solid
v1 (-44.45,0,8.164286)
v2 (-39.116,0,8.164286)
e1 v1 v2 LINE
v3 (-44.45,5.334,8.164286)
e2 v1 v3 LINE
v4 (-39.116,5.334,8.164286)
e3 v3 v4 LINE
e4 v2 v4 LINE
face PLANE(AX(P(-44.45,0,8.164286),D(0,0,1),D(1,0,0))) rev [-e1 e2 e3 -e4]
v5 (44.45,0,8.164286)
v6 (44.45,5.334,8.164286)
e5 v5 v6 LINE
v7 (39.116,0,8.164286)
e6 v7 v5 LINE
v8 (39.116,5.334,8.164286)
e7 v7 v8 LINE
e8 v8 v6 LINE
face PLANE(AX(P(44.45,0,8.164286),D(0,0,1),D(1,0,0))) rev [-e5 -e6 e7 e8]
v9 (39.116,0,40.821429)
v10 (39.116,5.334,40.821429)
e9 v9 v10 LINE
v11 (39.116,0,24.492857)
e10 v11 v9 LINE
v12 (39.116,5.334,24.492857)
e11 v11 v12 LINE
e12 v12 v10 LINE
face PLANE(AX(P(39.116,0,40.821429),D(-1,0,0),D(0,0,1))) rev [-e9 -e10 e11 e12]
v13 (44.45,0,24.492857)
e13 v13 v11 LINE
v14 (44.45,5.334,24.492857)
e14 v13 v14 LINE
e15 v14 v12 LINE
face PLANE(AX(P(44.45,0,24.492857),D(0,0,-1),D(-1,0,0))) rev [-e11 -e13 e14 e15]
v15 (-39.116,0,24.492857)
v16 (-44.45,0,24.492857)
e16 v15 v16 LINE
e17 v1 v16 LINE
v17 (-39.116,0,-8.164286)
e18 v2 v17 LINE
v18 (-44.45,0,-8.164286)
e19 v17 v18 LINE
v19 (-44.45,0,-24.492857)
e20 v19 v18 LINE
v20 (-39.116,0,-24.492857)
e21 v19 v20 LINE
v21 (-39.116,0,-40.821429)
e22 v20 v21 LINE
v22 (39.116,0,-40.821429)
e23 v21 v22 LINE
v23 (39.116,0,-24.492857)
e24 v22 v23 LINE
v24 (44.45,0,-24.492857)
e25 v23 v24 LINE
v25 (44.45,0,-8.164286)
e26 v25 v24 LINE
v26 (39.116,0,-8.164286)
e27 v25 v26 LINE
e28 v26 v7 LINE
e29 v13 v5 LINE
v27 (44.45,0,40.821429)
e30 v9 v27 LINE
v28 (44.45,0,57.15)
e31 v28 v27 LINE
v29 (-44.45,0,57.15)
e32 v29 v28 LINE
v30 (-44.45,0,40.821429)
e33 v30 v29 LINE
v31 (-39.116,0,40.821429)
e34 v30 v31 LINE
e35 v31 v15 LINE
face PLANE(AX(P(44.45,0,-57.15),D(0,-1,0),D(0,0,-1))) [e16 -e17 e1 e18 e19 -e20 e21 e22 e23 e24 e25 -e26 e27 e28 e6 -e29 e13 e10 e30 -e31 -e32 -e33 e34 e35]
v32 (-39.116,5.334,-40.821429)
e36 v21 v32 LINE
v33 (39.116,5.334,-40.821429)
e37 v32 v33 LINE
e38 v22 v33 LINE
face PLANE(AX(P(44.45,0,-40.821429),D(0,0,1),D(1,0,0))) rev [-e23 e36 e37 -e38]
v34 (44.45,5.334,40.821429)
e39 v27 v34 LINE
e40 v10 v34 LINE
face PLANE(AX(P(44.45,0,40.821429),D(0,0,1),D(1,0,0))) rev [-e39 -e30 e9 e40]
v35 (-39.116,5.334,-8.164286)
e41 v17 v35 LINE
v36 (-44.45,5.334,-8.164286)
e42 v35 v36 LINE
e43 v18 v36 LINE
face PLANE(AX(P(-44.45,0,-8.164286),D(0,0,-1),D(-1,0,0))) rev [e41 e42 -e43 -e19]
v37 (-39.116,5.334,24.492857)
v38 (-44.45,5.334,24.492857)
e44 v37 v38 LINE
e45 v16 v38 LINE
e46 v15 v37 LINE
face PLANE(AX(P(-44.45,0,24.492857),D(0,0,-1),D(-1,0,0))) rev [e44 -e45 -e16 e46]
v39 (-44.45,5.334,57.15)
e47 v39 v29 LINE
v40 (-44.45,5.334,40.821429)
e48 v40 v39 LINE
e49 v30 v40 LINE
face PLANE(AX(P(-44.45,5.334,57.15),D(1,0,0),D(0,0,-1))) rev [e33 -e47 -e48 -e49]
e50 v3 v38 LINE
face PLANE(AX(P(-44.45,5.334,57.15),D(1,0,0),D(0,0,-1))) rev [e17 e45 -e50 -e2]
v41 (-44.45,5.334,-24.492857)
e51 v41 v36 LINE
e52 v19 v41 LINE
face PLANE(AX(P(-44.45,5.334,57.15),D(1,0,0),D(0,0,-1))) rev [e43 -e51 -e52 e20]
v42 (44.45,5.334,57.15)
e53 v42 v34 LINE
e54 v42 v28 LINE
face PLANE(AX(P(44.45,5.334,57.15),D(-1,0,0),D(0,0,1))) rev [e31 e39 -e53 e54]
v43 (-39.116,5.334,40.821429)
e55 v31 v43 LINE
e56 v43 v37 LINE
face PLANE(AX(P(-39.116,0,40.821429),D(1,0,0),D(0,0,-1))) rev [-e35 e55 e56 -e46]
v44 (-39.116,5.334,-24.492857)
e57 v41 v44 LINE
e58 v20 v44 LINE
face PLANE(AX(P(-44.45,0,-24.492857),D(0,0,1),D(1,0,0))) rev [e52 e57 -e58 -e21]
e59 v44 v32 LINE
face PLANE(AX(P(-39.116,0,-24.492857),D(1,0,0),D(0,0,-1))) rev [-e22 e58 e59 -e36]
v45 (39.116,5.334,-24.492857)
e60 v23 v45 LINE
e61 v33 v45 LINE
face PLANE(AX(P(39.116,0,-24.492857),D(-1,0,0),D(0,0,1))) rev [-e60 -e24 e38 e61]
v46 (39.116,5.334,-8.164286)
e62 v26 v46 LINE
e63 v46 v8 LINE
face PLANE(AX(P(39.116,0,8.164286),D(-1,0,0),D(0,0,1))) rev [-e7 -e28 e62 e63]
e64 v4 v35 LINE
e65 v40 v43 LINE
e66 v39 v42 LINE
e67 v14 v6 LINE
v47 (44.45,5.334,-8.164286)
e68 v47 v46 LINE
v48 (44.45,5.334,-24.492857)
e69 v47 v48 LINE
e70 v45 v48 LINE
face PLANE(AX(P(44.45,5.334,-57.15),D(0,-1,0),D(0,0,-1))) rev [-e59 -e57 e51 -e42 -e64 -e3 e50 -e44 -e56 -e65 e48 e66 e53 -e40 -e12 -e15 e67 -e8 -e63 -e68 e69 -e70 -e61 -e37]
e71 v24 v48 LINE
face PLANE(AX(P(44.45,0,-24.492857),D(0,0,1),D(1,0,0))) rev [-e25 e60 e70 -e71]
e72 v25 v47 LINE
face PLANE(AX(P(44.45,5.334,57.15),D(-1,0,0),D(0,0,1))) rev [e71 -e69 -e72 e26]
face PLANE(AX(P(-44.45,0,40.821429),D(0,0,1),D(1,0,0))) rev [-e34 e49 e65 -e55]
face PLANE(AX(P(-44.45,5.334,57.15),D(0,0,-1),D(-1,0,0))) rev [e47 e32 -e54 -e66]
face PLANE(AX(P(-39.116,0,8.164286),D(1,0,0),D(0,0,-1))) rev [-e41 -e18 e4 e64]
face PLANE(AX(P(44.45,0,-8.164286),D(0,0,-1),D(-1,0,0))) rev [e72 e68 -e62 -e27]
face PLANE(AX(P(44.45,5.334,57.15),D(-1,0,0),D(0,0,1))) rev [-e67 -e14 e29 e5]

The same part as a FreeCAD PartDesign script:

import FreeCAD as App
import Part
import Sketcher

V = App.Vector
Q = App.Units.Quantity

doc = App.newDocument("Part")
body = doc.addObject("PartDesign::Body", "Body")

sketch1 = body.newObject("Sketcher::SketchObject", "Sketch")
sketch1.AttachmentSupport = (doc.getObject("XZ_Plane"), [""])
sketch1.MapMode = "FlatFace"
sketch1.addGeometry([
    Part.LineSegment(V(-44.45, -57.15, 0), V(-44.45, 57.15, 0)),
    Part.LineSegment(V(-44.45, 57.15, 0), V(44.45, 57.15, 0)),
    Part.LineSegment(V(44.45, 57.15, 0), V(44.45, -57.15, 0)),
    Part.LineSegment(V(44.45, -57.15, 0), V(-44.45, -57.15, 0)),
], False)
sketch1.addConstraint([
    Sketcher.Constraint("Coincident", 0, 2, 1, 1),
    Sketcher.Constraint("Coincident", 1, 2, 2, 1),
    Sketcher.Constraint("Coincident", 2, 2, 3, 1),
    Sketcher.Constraint("Coincident", 3, 2, 0, 1),
    Sketcher.Constraint("Vertical", 0),
    Sketcher.Constraint("Horizontal", 1),
    Sketcher.Constraint("Vertical", 2),
    Sketcher.Constraint("Horizontal", 3),
    Sketcher.Constraint("Symmetric", 0, 2, 2, 2, -1, 1),
    Sketcher.Constraint("DistanceX", 1, 1, 1, 2, Q("3.5 in")),
    Sketcher.Constraint("DistanceY", 0, 1, 0, 2, Q("4.5 in")),
])
pad1 = body.newObject("PartDesign::Pad", "Pad")
pad1.Profile = sketch1
pad1.Length = Q("0.21 in")
pad1.Reversed = True

sketch2 = body.newObject("Sketcher::SketchObject", "Sketch001")
sketch2.AttachmentSupport = (doc.getObject("XZ_Plane"), [""])
sketch2.MapMode = "FlatFace"
sketch2.AttachmentOffset = App.Placement(V(0, 0, -0.21 * 25.4), App.Rotation())
sketch2.addGeometry([
    Part.LineSegment(V(39.116, 24.492857, 0), V(39.116, 40.821429, 0)),
    Part.LineSegment(V(39.116, 40.821429, 0), V(44.45, 40.821429, 0)),
    Part.LineSegment(V(44.45, 40.821429, 0), V(44.45, 24.492857, 0)),
    Part.LineSegment(V(44.45, 24.492857, 0), V(39.116, 24.492857, 0)),
    Part.LineSegment(V(39.116, -8.164286, 0), V(39.116, 8.164286, 0)),
    Part.LineSegment(V(39.116, 8.164286, 0), V(44.45, 8.164286, 0)),
    Part.LineSegment(V(44.45, 8.164286, 0), V(44.45, -8.164286, 0)),
    Part.LineSegment(V(44.45, -8.164286, 0), V(39.116, -8.164286, 0)),
    Part.LineSegment(V(39.116, -40.821429, 0), V(39.116, -24.492857, 0)),
    Part.LineSegment(V(39.116, -24.492857, 0), V(44.45, -24.492857, 0)),
    Part.LineSegment(V(44.45, -24.492857, 0), V(44.45, -40.821429, 0)),
    Part.LineSegment(V(44.45, -40.821429, 0), V(39.116, -40.821429, 0)),
    Part.LineSegment(V(-44.45, -40.821429, 0), V(-44.45, -24.492857, 0)),
    Part.LineSegment(V(-44.45, -24.492857, 0), V(-39.116, -24.492857, 0)),
    Part.LineSegment(V(-39.116, -24.492857, 0), V(-39.116, -40.821429, 0)),
    Part.LineSegment(V(-39.116, -40.821429, 0), V(-44.45, -40.821429, 0)),
    Part.LineSegment(V(-44.45, -8.164286, 0), V(-44.45, 8.164286, 0)),
    Part.LineSegment(V(-44.45, 8.164286, 0), V(-39.116, 8.164286, 0)),
    Part.LineSegment(V(-39.116, 8.164286, 0), V(-39.116, -8.164286, 0)),
    Part.LineSegment(V(-39.116, -8.164286, 0), V(-44.45, -8.164286, 0)),
    Part.LineSegment(V(-44.45, 24.492857, 0), V(-44.45, 40.821429, 0)),
    Part.LineSegment(V(-44.45, 40.821429, 0), V(-39.116, 40.821429, 0)),
    Part.LineSegment(V(-39.116, 40.821429, 0), V(-39.116, 24.492857, 0)),
    Part.LineSegment(V(-39.116, 24.492857, 0), V(-44.45, 24.492857, 0)),
], False)
sketch2.addConstraint([
    Sketcher.Constraint("Coincident", 0, 2, 1, 1),
    Sketcher.Constraint("Coincident", 1, 2, 2, 1),
    Sketcher.Constraint("Coincident", 2, 2, 3, 1),
    Sketcher.Constraint("Coincident", 3, 2, 0, 1),
    Sketcher.Constraint("Coincident", 4, 2, 5, 1),
    Sketcher.Constraint("Coincident", 5, 2, 6, 1),
    Sketcher.Constraint("Coincident", 6, 2, 7, 1),
    Sketcher.Constraint("Coincident", 7, 2, 4, 1),
    Sketcher.Constraint("Coincident", 8, 2, 9, 1),
    Sketcher.Constraint("Coincident", 9, 2, 10, 1),
    Sketcher.Constraint("Coincident", 10, 2, 11, 1),
    Sketcher.Constraint("Coincident", 11, 2, 8, 1),
    Sketcher.Constraint("Coincident", 12, 2, 13, 1),
    Sketcher.Constraint("Coincident", 13, 2, 14, 1),
    Sketcher.Constraint("Coincident", 14, 2, 15, 1),
    Sketcher.Constraint("Coincident", 15, 2, 12, 1),
    Sketcher.Constraint("Coincident", 16, 2, 17, 1),
    Sketcher.Constraint("Coincident", 17, 2, 18, 1),
    Sketcher.Constraint("Coincident", 18, 2, 19, 1),
    Sketcher.Constraint("Coincident", 19, 2, 16, 1),
    Sketcher.Constraint("Coincident", 20, 2, 21, 1),
    Sketcher.Constraint("Coincident", 21, 2, 22, 1),
    Sketcher.Constraint("Coincident", 22, 2, 23, 1),
    Sketcher.Constraint("Coincident", 23, 2, 20, 1),
    Sketcher.Constraint("Vertical", 0),
    Sketcher.Constraint("Horizontal", 1),
    Sketcher.Constraint("Vertical", 2),
    Sketcher.Constraint("Horizontal", 3),
    Sketcher.Constraint("Vertical", 4),
    Sketcher.Constraint("Horizontal", 5),
    Sketcher.Constraint("Vertical", 6),
    Sketcher.Constraint("Horizontal", 7),
    Sketcher.Constraint("Vertical", 8),
    Sketcher.Constraint("Horizontal", 9),
    Sketcher.Constraint("Vertical", 10),
    Sketcher.Constraint("Horizontal", 11),
    Sketcher.Constraint("Vertical", 12),
    Sketcher.Constraint("Horizontal", 13),
    Sketcher.Constraint("Vertical", 14),
    Sketcher.Constraint("Horizontal", 15),
    Sketcher.Constraint("Vertical", 16),
    Sketcher.Constraint("Horizontal", 17),
    Sketcher.Constraint("Vertical", 18),
    Sketcher.Constraint("Horizontal", 19),
    Sketcher.Constraint("Vertical", 20),
    Sketcher.Constraint("Horizontal", 21),
    Sketcher.Constraint("Vertical", 22),
    Sketcher.Constraint("Horizontal", 23),
    Sketcher.Constraint("Symmetric", 2, 2, 12, 2, -1, 1),
    Sketcher.Constraint("Symmetric", 0, 2, 14, 2, -1, 1),
    Sketcher.Constraint("Symmetric", 6, 2, 16, 2, -1, 1),
    Sketcher.Constraint("Symmetric", 4, 2, 18, 2, -1, 1),
    Sketcher.Constraint("Symmetric", 10, 2, 20, 2, -1, 1),
    Sketcher.Constraint("Symmetric", 8, 2, 22, 2, -1, 1),
    Sketcher.Constraint("Symmetric", 9, 2, 12, 2, -2),
    Sketcher.Constraint("Symmetric", 11, 2, 14, 2, -2),
    Sketcher.Constraint("Horizontal", 5, 2, 16, 2),
    Sketcher.Constraint("Vertical", 3, 2, 4, 2),
    Sketcher.Constraint("Vertical", 2, 2, 5, 2),
    Sketcher.Constraint("Equal", 2, 4),
    Sketcher.Constraint("DistanceX", 1, 1, 1, 2, Q("0.21 in")),
    Sketcher.Constraint("DistanceX", 12, 2, 9, 2, Q("3.5 in")),
    Sketcher.Constraint("DistanceY", 0, 1, 0, 2, Q("16.328571 mm")),
    Sketcher.Constraint("DistanceY", -1, 1, 0, 2, Q("40.821429 mm")),
])
pocket1 = body.newObject("PartDesign::Pocket", "Pocket")
pocket1.Profile = sketch2
pocket1.Type = "ThroughAll"
pocket1.Reversed = True

sketch3 = body.newObject("Sketcher::SketchObject", "Sketch002")
sketch3.AttachmentSupport = (doc.getObject("XZ_Plane"), [""])
sketch3.MapMode = "FlatFace"
sketch3.AttachmentOffset = App.Placement(V(0, 0, -0.21 * 25.4), App.Rotation())
sketch3.addGeometry([
    Part.LineSegment(V(39.116, 24.492857, 0), V(39.116, 40.821429, 0)),
    Part.LineSegment(V(39.116, 40.821429, 0), V(44.45, 40.821429, 0)),
    Part.LineSegment(V(44.45, 40.821429, 0), V(44.45, 24.492857, 0)),
    Part.LineSegment(V(44.45, 24.492857, 0), V(39.116, 24.492857, 0)),
    Part.LineSegment(V(39.116, -8.164286, 0), V(39.116, 8.164286, 0)),
    Part.LineSegment(V(39.116, 8.164286, 0), V(44.45, 8.164286, 0)),
    Part.LineSegment(V(44.45, 8.164286, 0), V(44.45, -8.164286, 0)),
    Part.LineSegment(V(44.45, -8.164286, 0), V(39.116, -8.164286, 0)),
    Part.LineSegment(V(39.116, -40.821429, 0), V(39.116, -24.492857, 0)),
    Part.LineSegment(V(39.116, -24.492857, 0), V(44.45, -24.492857, 0)),
    Part.LineSegment(V(44.45, -24.492857, 0), V(44.45, -40.821429, 0)),
    Part.LineSegment(V(44.45, -40.821429, 0), V(39.116, -40.821429, 0)),
    Part.LineSegment(V(-44.45, -40.821429, 0), V(-44.45, -24.492857, 0)),
    Part.LineSegment(V(-44.45, -24.492857, 0), V(-39.116, -24.492857, 0)),
    Part.LineSegment(V(-39.116, -24.492857, 0), V(-39.116, -40.821429, 0)),
    Part.LineSegment(V(-39.116, -40.821429, 0), V(-44.45, -40.821429, 0)),
    Part.LineSegment(V(-44.45, -8.164286, 0), V(-44.45, 8.164286, 0)),
    Part.LineSegment(V(-44.45, 8.164286, 0), V(-39.116, 8.164286, 0)),
    Part.LineSegment(V(-39.116, 8.164286, 0), V(-39.116, -8.164286, 0)),
    Part.LineSegment(V(-39.116, -8.164286, 0), V(-44.45, -8.164286, 0)),
    Part.LineSegment(V(-44.45, 24.492857, 0), V(-44.45, 40.821429, 0)),
    Part.LineSegment(V(-44.45, 40.821429, 0), V(-39.116, 40.821429, 0)),
    Part.LineSegment(V(-39.116, 40.821429, 0), V(-39.116, 24.492857, 0)),
    Part.LineSegment(V(-39.116, 24.492857, 0), V(-44.45, 24.492857, 0)),
], False)
sketch3.addConstraint([
    Sketcher.Constraint("Coincident", 0, 2, 1, 1),
    Sketcher.Constraint("Coincident", 1, 2, 2, 1),
    Sketcher.Constraint("Coincident", 2, 2, 3, 1),
    Sketcher.Constraint("Coincident", 3, 2, 0, 1),
    Sketcher.Constraint("Coincident", 4, 2, 5, 1),
    Sketcher.Constraint("Coincident", 5, 2, 6, 1),
    Sketcher.Constraint("Coincident", 6, 2, 7, 1),
    Sketcher.Constraint("Coincident", 7, 2, 4, 1),
    Sketcher.Constraint("Coincident", 8, 2, 9, 1),
    Sketcher.Constraint("Coincident", 9, 2, 10, 1),
    Sketcher.Constraint("Coincident", 10, 2, 11, 1),
    Sketcher.Constraint("Coincident", 11, 2, 8, 1),
    Sketcher.Constraint("Coincident", 12, 2, 13, 1),
    Sketcher.Constraint("Coincident", 13, 2, 14, 1),
    Sketcher.Constraint("Coincident", 14, 2, 15, 1),
    Sketcher.Constraint("Coincident", 15, 2, 12, 1),
    Sketcher.Constraint("Coincident", 16, 2, 17, 1),
    Sketcher.Constraint("Coincident", 17, 2, 18, 1),
    Sketcher.Constraint("Coincident", 18, 2, 19, 1),
    Sketcher.Constraint("Coincident", 19, 2, 16, 1),
    Sketcher.Constraint("Coincident", 20, 2, 21, 1),
    Sketcher.Constraint("Coincident", 21, 2, 22, 1),
    Sketcher.Constraint("Coincident", 22, 2, 23, 1),
    Sketcher.Constraint("Coincident", 23, 2, 20, 1),
    Sketcher.Constraint("Vertical", 0),
    Sketcher.Constraint("Horizontal", 1),
    Sketcher.Constraint("Vertical", 2),
    Sketcher.Constraint("Horizontal", 3),
    Sketcher.Constraint("Vertical", 4),
    Sketcher.Constraint("Horizontal", 5),
    Sketcher.Constraint("Vertical", 6),
    Sketcher.Constraint("Horizontal", 7),
    Sketcher.Constraint("Vertical", 8),
    Sketcher.Constraint("Horizontal", 9),
    Sketcher.Constraint("Vertical", 10),
    Sketcher.Constraint("Horizontal", 11),
    Sketcher.Constraint("Vertical", 12),
    Sketcher.Constraint("Horizontal", 13),
    Sketcher.Constraint("Vertical", 14),
    Sketcher.Constraint("Horizontal", 15),
    Sketcher.Constraint("Vertical", 16),
    Sketcher.Constraint("Horizontal", 17),
    Sketcher.Constraint("Vertical", 18),
    Sketcher.Constraint("Horizontal", 19),
    Sketcher.Constraint("Vertical", 20),
    Sketcher.Constraint("Horizontal", 21),
    Sketcher.Constraint("Vertical", 22),
    Sketcher.Constraint("Horizontal", 23),
    Sketcher.Constraint("Symmetric", 2, 2, 12, 2, -1, 1),
    Sketcher.Constraint("Symmetric", 0, 2, 14, 2, -1, 1),
    Sketcher.Constraint("Symmetric", 6, 2, 16, 2, -1, 1),
    Sketcher.Constraint("Symmetric", 4, 2, 18, 2, -1, 1),
    Sketcher.Constraint("Symmetric", 10, 2, 20, 2, -1, 1),
    Sketcher.Constraint("Symmetric", 8, 2, 22, 2, -1, 1),
    Sketcher.Constraint("Symmetric", 9, 2, 12, 2, -2),
    Sketcher.Constraint("Symmetric", 11, 2, 14, 2, -2),
    Sketcher.Constraint("Horizontal", 5, 2, 16, 2),
    Sketcher.Constraint("Vertical", 3, 2, 4, 2),
    Sketcher.Constraint("Vertical", 2, 2, 5, 2),
    Sketcher.Constraint("Equal", 2, 4),
    Sketcher.Constraint("DistanceX", 1, 1, 1, 2, Q("0.21 in")),
    Sketcher.Constraint("DistanceX", 12, 2, 9, 2, Q("3.5 in")),
    Sketcher.Constraint("DistanceY", 0, 1, 0, 2, Q("16.328571 mm")),
    Sketcher.Constraint("DistanceY", -1, 1, 0, 2, Q("40.821429 mm")),
])
pad2 = body.newObject("PartDesign::Pad", "Pad001")
pad2.Profile = sketch3
pad2.Type = "UpToLast"

sketch4 = body.newObject("Sketcher::SketchObject", "Sketch003")
sketch4.AttachmentSupport = (doc.getObject("XZ_Plane"), [""])
sketch4.MapMode = "FlatFace"
sketch4.AttachmentOffset = App.Placement(V(0, 0, -0.21 * 25.4), App.Rotation())
sketch4.addGeometry([
    Part.LineSegment(V(39.116, 24.492857, 0), V(39.116, 40.821429, 0)),
    Part.LineSegment(V(39.116, 40.821429, 0), V(44.45, 40.821429, 0)),
    Part.LineSegment(V(44.45, 40.821429, 0), V(44.45, 24.492857, 0)),
    Part.LineSegment(V(44.45, 24.492857, 0), V(39.116, 24.492857, 0)),
    Part.LineSegment(V(39.116, -8.164286, 0), V(39.116, 8.164286, 0)),
    Part.LineSegment(V(39.116, 8.164286, 0), V(44.45, 8.164286, 0)),
    Part.LineSegment(V(44.45, 8.164286, 0), V(44.45, -8.164286, 0)),
    Part.LineSegment(V(44.45, -8.164286, 0), V(39.116, -8.164286, 0)),
    Part.LineSegment(V(39.116, -40.821429, 0), V(39.116, -24.492857, 0)),
    Part.LineSegment(V(39.116, -24.492857, 0), V(44.45, -24.492857, 0)),
    Part.LineSegment(V(44.45, -24.492857, 0), V(44.45, -40.821429, 0)),
    Part.LineSegment(V(44.45, -40.821429, 0), V(39.116, -40.821429, 0)),
    Part.LineSegment(V(-44.45, -40.821429, 0), V(-44.45, -24.492857, 0)),
    Part.LineSegment(V(-44.45, -24.492857, 0), V(-39.116, -24.492857, 0)),
    Part.LineSegment(V(-39.116, -24.492857, 0), V(-39.116, -40.821429, 0)),
    Part.LineSegment(V(-39.116, -40.821429, 0), V(-44.45, -40.821429, 0)),
    Part.LineSegment(V(-44.45, -8.164286, 0), V(-44.45, 8.164286, 0)),
    Part.LineSegment(V(-44.45, 8.164286, 0), V(-39.116, 8.164286, 0)),
    Part.LineSegment(V(-39.116, 8.164286, 0), V(-39.116, -8.164286, 0)),
    Part.LineSegment(V(-39.116, -8.164286, 0), V(-44.45, -8.164286, 0)),
    Part.LineSegment(V(-44.45, 24.492857, 0), V(-44.45, 40.821429, 0)),
    Part.LineSegment(V(-44.45, 40.821429, 0), V(-39.116, 40.821429, 0)),
    Part.LineSegment(V(-39.116, 40.821429, 0), V(-39.116, 24.492857, 0)),
    Part.LineSegment(V(-39.116, 24.492857, 0), V(-44.45, 24.492857, 0)),
], False)
sketch4.addConstraint([
    Sketcher.Constraint("Coincident", 0, 2, 1, 1),
    Sketcher.Constraint("Coincident", 1, 2, 2, 1),
    Sketcher.Constraint("Coincident", 2, 2, 3, 1),
    Sketcher.Constraint("Coincident", 3, 2, 0, 1),
    Sketcher.Constraint("Coincident", 4, 2, 5, 1),
    Sketcher.Constraint("Coincident", 5, 2, 6, 1),
    Sketcher.Constraint("Coincident", 6, 2, 7, 1),
    Sketcher.Constraint("Coincident", 7, 2, 4, 1),
    Sketcher.Constraint("Coincident", 8, 2, 9, 1),
    Sketcher.Constraint("Coincident", 9, 2, 10, 1),
    Sketcher.Constraint("Coincident", 10, 2, 11, 1),
    Sketcher.Constraint("Coincident", 11, 2, 8, 1),
    Sketcher.Constraint("Coincident", 12, 2, 13, 1),
    Sketcher.Constraint("Coincident", 13, 2, 14, 1),
    Sketcher.Constraint("Coincident", 14, 2, 15, 1),
    Sketcher.Constraint("Coincident", 15, 2, 12, 1),
    Sketcher.Constraint("Coincident", 16, 2, 17, 1),
    Sketcher.Constraint("Coincident", 17, 2, 18, 1),
    Sketcher.Constraint("Coincident", 18, 2, 19, 1),
    Sketcher.Constraint("Coincident", 19, 2, 16, 1),
    Sketcher.Constraint("Coincident", 20, 2, 21, 1),
    Sketcher.Constraint("Coincident", 21, 2, 22, 1),
    Sketcher.Constraint("Coincident", 22, 2, 23, 1),
    Sketcher.Constraint("Coincident", 23, 2, 20, 1),
    Sketcher.Constraint("Vertical", 0),
    Sketcher.Constraint("Horizontal", 1),
    Sketcher.Constraint("Vertical", 2),
    Sketcher.Constraint("Horizontal", 3),
    Sketcher.Constraint("Vertical", 4),
    Sketcher.Constraint("Horizontal", 5),
    Sketcher.Constraint("Vertical", 6),
    Sketcher.Constraint("Horizontal", 7),
    Sketcher.Constraint("Vertical", 8),
    Sketcher.Constraint("Horizontal", 9),
    Sketcher.Constraint("Vertical", 10),
    Sketcher.Constraint("Horizontal", 11),
    Sketcher.Constraint("Vertical", 12),
    Sketcher.Constraint("Horizontal", 13),
    Sketcher.Constraint("Vertical", 14),
    Sketcher.Constraint("Horizontal", 15),
    Sketcher.Constraint("Vertical", 16),
    Sketcher.Constraint("Horizontal", 17),
    Sketcher.Constraint("Vertical", 18),
    Sketcher.Constraint("Horizontal", 19),
    Sketcher.Constraint("Vertical", 20),
    Sketcher.Constraint("Horizontal", 21),
    Sketcher.Constraint("Vertical", 22),
    Sketcher.Constraint("Horizontal", 23),
    Sketcher.Constraint("Symmetric", 2, 2, 12, 2, -1, 1),
    Sketcher.Constraint("Symmetric", 0, 2, 14, 2, -1, 1),
    Sketcher.Constraint("Symmetric", 6, 2, 16, 2, -1, 1),
    Sketcher.Constraint("Symmetric", 4, 2, 18, 2, -1, 1),
    Sketcher.Constraint("Symmetric", 10, 2, 20, 2, -1, 1),
    Sketcher.Constraint("Symmetric", 8, 2, 22, 2, -1, 1),
    Sketcher.Constraint("Symmetric", 9, 2, 12, 2, -2),
    Sketcher.Constraint("Symmetric", 11, 2, 14, 2, -2),
    Sketcher.Constraint("Horizontal", 5, 2, 16, 2),
    Sketcher.Constraint("Vertical", 3, 2, 4, 2),
    Sketcher.Constraint("Vertical", 2, 2, 5, 2),
    Sketcher.Constraint("Equal", 2, 4),
    Sketcher.Constraint("DistanceX", 1, 1, 1, 2, Q("0.21 in")),
    Sketcher.Constraint("DistanceX", 12, 2, 9, 2, Q("3.5 in")),
    Sketcher.Constraint("DistanceY", 0, 1, 0, 2, Q("16.328571 mm")),
    Sketcher.Constraint("DistanceY", -1, 1, 0, 2, Q("40.821429 mm")),
])
pocket2 = body.newObject("PartDesign::Pocket", "Pocket001")
pocket2.Profile = sketch4
pocket2.Type = "ThroughAll"
pocket2.Reversed = True

sketch5 = body.newObject("Sketcher::SketchObject", "Sketch004")
sketch5.AttachmentSupport = (doc.getObject("XZ_Plane"), [""])
sketch5.MapMode = "FlatFace"
sketch5.AttachmentOffset = App.Placement(V(0, 0, -0.21 * 25.4), App.Rotation())
sketch5.addGeometry([
    Part.LineSegment(V(-44.45, -40.821429, 0), V(44.45, -40.821429, 0)),
    Part.LineSegment(V(44.45, -40.821429, 0), V(44.45, -57.15, 0)),
    Part.LineSegment(V(44.45, -57.15, 0), V(-44.45, -57.15, 0)),
    Part.LineSegment(V(-44.45, -57.15, 0), V(-44.45, -40.821429, 0)),
], False)
sketch5.addConstraint([
    Sketcher.Constraint("Coincident", 0, 2, 1, 1),
    Sketcher.Constraint("Coincident", 1, 2, 2, 1),
    Sketcher.Constraint("Coincident", 2, 2, 3, 1),
    Sketcher.Constraint("Coincident", 3, 2, 0, 1),
    Sketcher.Constraint("Horizontal", 0),
    Sketcher.Constraint("Vertical", 1),
    Sketcher.Constraint("Horizontal", 2),
    Sketcher.Constraint("Vertical", 3),
    Sketcher.Constraint("DistanceX", 0, 1, 0, 2, Q("3.5 in")),
    Sketcher.Constraint("DistanceX", -1, 1, 0, 2, Q("1.75 in")),
    Sketcher.Constraint("DistanceY", 1, 2, -1, 1, Q("2.25 in")),
    Sketcher.Constraint("DistanceY", 1, 2, 1, 1, Q("16.328571 mm")),
])
pocket3 = body.newObject("PartDesign::Pocket", "Pocket002")
pocket3.Profile = sketch5
pocket3.Type = "ThroughAll"
pocket3.Reversed = True

doc.recompute()
